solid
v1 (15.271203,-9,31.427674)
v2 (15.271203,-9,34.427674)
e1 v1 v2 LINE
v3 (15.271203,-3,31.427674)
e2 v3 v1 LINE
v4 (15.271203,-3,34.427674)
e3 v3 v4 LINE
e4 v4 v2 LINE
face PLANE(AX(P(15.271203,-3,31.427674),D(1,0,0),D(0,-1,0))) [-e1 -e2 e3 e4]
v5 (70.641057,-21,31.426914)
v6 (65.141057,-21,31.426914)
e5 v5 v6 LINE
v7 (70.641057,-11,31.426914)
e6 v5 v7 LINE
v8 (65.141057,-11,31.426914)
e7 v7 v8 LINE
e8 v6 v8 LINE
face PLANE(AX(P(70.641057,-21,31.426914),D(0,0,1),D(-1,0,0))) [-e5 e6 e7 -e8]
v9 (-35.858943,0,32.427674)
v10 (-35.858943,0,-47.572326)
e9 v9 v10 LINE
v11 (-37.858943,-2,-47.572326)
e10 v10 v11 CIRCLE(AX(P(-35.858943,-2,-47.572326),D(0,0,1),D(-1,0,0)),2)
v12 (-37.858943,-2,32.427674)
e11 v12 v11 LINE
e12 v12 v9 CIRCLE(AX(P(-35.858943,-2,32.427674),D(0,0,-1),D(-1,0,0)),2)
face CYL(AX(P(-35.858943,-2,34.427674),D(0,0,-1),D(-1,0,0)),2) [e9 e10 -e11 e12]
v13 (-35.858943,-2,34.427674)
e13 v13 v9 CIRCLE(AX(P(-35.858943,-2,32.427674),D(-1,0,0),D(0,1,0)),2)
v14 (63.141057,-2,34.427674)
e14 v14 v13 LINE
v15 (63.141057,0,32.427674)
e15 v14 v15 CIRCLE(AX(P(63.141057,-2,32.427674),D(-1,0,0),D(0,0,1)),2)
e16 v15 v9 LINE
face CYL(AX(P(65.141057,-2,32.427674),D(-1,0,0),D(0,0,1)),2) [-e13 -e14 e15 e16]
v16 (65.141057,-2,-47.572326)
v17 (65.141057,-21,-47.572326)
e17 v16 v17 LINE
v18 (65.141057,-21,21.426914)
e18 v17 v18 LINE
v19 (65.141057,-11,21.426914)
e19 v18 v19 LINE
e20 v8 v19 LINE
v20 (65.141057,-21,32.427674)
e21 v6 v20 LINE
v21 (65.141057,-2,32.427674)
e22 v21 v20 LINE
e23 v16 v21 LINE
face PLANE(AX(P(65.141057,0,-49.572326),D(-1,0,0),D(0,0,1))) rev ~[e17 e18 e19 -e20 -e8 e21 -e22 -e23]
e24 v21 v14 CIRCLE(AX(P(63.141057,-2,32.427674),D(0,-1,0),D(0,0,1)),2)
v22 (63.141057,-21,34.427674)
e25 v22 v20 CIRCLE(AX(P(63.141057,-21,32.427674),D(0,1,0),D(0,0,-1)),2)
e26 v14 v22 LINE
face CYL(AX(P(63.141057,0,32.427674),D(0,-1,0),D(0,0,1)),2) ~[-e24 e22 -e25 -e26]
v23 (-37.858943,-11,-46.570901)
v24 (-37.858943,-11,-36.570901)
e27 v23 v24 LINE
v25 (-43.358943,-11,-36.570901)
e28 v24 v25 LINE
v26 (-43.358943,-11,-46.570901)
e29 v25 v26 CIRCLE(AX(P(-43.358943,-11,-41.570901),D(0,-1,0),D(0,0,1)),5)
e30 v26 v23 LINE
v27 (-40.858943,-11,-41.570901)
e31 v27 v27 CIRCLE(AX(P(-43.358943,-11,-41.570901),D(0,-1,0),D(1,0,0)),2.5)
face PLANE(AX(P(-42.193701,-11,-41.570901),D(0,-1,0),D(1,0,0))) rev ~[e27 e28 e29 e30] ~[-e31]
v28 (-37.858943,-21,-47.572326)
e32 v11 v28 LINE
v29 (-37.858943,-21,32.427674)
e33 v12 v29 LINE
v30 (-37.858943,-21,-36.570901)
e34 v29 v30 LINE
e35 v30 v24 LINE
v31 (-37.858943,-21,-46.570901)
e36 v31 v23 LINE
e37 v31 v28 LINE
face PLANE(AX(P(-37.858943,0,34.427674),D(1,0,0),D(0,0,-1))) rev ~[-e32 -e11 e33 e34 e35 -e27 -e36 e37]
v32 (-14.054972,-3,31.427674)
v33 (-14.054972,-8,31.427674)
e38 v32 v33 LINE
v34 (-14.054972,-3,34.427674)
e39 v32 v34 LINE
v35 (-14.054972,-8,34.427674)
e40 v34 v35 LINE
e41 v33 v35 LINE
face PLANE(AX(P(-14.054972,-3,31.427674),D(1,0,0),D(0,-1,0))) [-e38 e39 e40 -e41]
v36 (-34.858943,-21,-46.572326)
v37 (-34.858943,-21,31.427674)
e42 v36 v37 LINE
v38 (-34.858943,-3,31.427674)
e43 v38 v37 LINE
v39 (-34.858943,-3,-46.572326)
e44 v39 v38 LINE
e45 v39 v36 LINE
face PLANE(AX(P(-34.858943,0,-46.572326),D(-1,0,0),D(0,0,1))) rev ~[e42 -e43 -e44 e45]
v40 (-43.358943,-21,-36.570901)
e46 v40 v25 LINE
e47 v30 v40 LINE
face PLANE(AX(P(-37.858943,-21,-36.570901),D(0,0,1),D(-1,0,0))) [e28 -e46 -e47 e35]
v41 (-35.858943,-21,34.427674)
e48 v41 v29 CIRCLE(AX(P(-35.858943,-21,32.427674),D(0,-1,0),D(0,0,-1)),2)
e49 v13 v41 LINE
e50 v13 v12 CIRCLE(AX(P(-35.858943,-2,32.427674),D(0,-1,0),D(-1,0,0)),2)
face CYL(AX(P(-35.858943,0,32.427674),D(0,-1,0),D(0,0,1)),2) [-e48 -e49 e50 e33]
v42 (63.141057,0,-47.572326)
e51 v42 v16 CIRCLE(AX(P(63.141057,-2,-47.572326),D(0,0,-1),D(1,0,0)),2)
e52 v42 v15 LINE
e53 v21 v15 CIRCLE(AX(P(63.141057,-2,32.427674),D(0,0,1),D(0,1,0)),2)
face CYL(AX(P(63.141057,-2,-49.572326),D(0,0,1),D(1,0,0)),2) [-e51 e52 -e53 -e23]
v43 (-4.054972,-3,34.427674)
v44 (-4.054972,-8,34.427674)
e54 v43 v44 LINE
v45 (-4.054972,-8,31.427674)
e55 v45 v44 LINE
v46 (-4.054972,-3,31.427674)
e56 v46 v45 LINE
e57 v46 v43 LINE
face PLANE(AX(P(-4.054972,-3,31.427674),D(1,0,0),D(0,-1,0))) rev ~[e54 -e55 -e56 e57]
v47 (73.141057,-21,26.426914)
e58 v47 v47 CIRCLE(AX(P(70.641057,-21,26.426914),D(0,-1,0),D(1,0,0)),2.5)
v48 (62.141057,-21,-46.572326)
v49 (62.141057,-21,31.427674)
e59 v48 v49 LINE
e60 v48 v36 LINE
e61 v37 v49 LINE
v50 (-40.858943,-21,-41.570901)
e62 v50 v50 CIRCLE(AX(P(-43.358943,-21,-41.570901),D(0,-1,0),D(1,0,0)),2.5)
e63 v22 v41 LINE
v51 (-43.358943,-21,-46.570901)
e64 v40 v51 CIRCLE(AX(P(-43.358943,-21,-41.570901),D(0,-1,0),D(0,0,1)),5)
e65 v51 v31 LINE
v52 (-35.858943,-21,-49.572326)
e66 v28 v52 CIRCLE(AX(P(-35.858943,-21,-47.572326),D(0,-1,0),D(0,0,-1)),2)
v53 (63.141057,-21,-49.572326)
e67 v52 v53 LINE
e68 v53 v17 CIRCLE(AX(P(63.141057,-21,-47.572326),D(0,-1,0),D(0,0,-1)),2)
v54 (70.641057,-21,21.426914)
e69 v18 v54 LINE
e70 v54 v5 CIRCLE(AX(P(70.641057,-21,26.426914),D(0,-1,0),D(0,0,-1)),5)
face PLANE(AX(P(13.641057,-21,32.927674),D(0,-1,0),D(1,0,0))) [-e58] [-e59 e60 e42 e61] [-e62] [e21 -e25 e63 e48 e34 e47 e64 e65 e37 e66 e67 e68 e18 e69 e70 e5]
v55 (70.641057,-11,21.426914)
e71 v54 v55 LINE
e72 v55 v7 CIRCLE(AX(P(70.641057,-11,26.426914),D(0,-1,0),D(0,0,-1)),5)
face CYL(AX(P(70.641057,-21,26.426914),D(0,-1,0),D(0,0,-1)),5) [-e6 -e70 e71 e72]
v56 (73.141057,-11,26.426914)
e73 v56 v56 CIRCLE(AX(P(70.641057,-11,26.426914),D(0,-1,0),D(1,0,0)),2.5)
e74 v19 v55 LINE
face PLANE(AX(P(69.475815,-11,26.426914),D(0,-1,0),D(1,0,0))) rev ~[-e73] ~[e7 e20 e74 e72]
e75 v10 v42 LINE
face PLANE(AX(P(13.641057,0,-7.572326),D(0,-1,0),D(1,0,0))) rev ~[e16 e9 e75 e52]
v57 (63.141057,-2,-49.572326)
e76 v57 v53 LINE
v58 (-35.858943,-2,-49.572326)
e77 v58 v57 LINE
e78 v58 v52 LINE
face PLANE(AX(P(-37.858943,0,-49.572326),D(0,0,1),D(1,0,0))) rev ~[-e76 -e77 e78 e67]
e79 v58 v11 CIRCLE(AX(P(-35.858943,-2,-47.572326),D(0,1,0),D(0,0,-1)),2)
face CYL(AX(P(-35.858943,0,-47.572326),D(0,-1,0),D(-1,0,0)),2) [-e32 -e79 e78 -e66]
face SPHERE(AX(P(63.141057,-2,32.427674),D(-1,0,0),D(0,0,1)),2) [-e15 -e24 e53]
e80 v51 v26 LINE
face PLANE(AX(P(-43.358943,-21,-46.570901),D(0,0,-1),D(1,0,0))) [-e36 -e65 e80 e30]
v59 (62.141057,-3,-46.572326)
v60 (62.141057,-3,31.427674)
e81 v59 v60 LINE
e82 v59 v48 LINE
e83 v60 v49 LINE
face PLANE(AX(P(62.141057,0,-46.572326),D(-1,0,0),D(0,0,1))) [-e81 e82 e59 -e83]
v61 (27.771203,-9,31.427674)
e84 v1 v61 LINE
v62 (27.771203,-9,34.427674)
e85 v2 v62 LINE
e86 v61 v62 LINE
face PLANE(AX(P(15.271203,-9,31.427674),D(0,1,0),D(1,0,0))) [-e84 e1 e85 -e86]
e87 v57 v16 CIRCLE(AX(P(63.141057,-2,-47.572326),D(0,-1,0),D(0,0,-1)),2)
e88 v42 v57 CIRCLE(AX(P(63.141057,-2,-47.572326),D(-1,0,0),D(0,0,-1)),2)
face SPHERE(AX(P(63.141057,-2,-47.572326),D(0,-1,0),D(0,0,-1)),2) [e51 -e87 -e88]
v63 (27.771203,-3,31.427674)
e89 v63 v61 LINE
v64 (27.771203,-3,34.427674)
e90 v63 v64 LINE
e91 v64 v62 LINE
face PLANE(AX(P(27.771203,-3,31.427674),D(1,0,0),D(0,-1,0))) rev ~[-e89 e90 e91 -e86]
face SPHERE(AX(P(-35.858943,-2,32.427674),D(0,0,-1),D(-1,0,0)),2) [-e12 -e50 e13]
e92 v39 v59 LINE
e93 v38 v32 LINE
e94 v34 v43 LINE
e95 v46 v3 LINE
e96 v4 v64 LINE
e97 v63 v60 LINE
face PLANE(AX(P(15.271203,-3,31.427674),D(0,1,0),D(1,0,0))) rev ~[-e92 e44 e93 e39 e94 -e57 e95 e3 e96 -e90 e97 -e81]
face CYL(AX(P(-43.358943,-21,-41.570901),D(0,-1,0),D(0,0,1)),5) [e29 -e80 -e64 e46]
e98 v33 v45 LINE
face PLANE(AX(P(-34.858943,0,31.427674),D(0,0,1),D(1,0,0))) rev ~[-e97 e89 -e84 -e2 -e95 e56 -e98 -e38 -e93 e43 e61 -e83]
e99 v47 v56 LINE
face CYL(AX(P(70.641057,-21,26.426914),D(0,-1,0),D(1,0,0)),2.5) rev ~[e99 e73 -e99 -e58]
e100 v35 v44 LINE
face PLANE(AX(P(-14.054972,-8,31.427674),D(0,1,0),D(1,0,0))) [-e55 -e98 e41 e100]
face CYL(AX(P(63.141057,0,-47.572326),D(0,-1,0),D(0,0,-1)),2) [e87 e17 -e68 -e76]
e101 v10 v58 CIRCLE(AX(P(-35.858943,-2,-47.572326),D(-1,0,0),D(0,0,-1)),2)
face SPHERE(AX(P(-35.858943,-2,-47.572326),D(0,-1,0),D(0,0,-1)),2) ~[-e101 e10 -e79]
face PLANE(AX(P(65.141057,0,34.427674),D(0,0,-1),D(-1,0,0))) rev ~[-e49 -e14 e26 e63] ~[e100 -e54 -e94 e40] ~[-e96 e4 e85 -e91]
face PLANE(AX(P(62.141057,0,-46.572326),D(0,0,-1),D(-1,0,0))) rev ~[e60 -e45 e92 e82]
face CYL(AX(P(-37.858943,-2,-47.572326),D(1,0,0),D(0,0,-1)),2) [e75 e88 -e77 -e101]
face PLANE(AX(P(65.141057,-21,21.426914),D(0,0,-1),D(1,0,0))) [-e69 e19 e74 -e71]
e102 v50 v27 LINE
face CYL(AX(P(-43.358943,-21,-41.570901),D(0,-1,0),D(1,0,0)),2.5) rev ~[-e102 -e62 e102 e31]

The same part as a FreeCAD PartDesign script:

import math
import FreeCAD as App
import Part
import Sketcher
Q = App.Units.Quantity


def edges_at(feature, points):
    """Names of the edges that pass closest to the given points."""
    edges = feature.Shape.Edges
    near = lambda p: min(range(len(edges)), key=lambda i: edges[i].distToShape(Part.Vertex(*p))[0])
    return sorted({f"Edge{near(p) + 1}" for p in points})


def add_polygon(sketch, points):
    """Adds a closed chain of lines whose ends are joined by coincident constraints."""
    first, n = sketch.GeometryCount, len(points)
    for a, b in zip(points, points[1:] + points[:1]):
        sketch.addGeometry(Part.LineSegment(App.Vector(*a, 0), App.Vector(*b, 0)), False)
    for i in range(n):
        sketch.addConstraint(Sketcher.Constraint("Coincident", first + i, 2, first + (i + 1) % n, 1))

doc = App.newDocument("Part")
params = doc.addObject("Spreadsheet::Sheet", "Params")
for row, (alias, value) in enumerate([
    ("sketch1_width", "103 mm"),
    ("sketch1_width2", "97 mm"),
    ("sketch1_height", "84 mm"),
    ("sketch1_height2", "78 mm"),
    ("pad1_length", "21 mm"),
    ("fillet_radius", "2 mm"),
    ("sketch2_width", "97 mm"),
    ("sketch2_height", "78 mm"),
    ("pad2_length", "3 mm"),
    ("sketch3_width", "10 mm"),
    ("sketch3_height", "5 mm"),
    ("pocket1_length", "3 mm"),
    ("sketch4_diameter", "5 mm"),
    ("sketch4_radius", "5 mm"),
    ("sketch4_width", "5.5 mm"),
    ("pad3_length", "10 mm"),
    ("sketch5_height", "6 mm"),
    ("sketch5_width", "12.5 mm"),
    ("pocket2_length", "3 mm"),
], start=1):
    params.set(f"A{row}", alias)
    params.set(f"B{row}", "=" + value)
    params.setAlias(f"B{row}", alias)

body = doc.addObject("PartDesign::Body", "Body")

sketch1 = body.newObject("Sketcher::SketchObject", "Sketch")
sketch1.AttachmentSupport = (doc.getObject("XZ_Plane"), [""])
sketch1.MapMode = "FlatFace"
add_polygon(sketch1, [(65, 34), (-38, 34), (-38, -50), (65, -50)])
add_polygon(sketch1, [(-35, 31), (62, 31), (62, -47), (-35, -47)])
sketch1.addConstraint(Sketcher.Constraint("Horizontal", 0))
sketch1.addConstraint(Sketcher.Constraint("Vertical", 1))
sketch1.addConstraint(Sketcher.Constraint("Horizontal", 2))
sketch1.addConstraint(Sketcher.Constraint("Vertical", 3))
sketch1.addConstraint(Sketcher.Constraint("Horizontal", 4))
sketch1.addConstraint(Sketcher.Constraint("Vertical", 5))
sketch1.addConstraint(Sketcher.Constraint("Horizontal", 6))
sketch1.addConstraint(Sketcher.Constraint("Vertical", 7))
sketch1.addConstraint(Sketcher.Constraint("DistanceX", 0, 2, 0, 1, Q("103 mm")))
sketch1.addConstraint(Sketcher.Constraint("DistanceX", 4, 1, 4, 2, Q("97 mm")))
sketch1.addConstraint(Sketcher.Constraint("DistanceY", 1, 2, 1, 1, Q("84 mm")))
sketch1.addConstraint(Sketcher.Constraint("DistanceY", 5, 2, 5, 1, Q("78 mm")))
sketch1.addConstraint(Sketcher.Constraint("DistanceX", 4, 2, 3, 2, Q("3 mm")))
sketch1.addConstraint(Sketcher.Constraint("DistanceY", 4, 2, 3, 2, Q("3 mm")))
sketch1.addConstraint(Sketcher.Constraint("DistanceX", 0, 2, -1, 1, Q("37.858943 mm")))
sketch1.addConstraint(Sketcher.Constraint("DistanceY", -1, 1, 0, 2, Q("34.427674 mm")))
sketch1.setExpression("Constraints[16]", "Params.sketch1_width")
sketch1.setExpression("Constraints[17]", "Params.sketch1_width2")
sketch1.setExpression("Constraints[18]", "Params.sketch1_height")
sketch1.setExpression("Constraints[19]", "Params.sketch1_height2")
pad1 = body.newObject("PartDesign::Pad", "Pad")
pad1.Profile = sketch1
pad1.setExpression("Length", "Params.pad1_length")
doc.recompute()

fillet = body.newObject("PartDesign::Fillet", "Fillet")
fillet.Base = (pad1, edges_at(pad1, [
    (-37.859, -10.5, -49.572),
    (65.141, -10.5, -49.572),
    (13.641, 0, -49.572),
    (-37.859, 0, -7.572),
    (-37.859, -10.5, 34.428),
    (13.641, 0, 34.428),
    (65.141, -10.5, 34.428),
    (65.141, 0, -7.572),
]))
fillet.setExpression("Radius", "Params.fillet_radius")

sketch2 = body.newObject("Sketcher::SketchObject", "Sketch001")
sketch2.AttachmentSupport = (doc.getObject("XZ_Plane"), [""])
sketch2.MapMode = "FlatFace"
add_polygon(sketch2, [(-35, 31), (-35, -47), (62, -47), (62, 31)])
sketch2.addConstraint(Sketcher.Constraint("Vertical", 0))
sketch2.addConstraint(Sketcher.Constraint("Horizontal", 1))
sketch2.addConstraint(Sketcher.Constraint("Vertical", 2))
sketch2.addConstraint(Sketcher.Constraint("Horizontal", 3))
sketch2.addConstraint(Sketcher.Constraint("DistanceX", 1, 1, 1, 2, Q("97 mm")))
sketch2.addConstraint(Sketcher.Constraint("DistanceY", 0, 2, 0, 1, Q("78 mm")))
sketch2.addConstraint(Sketcher.Constraint("DistanceX", 0, 2, -1, 1, Q("34.858943 mm")))
sketch2.addConstraint(Sketcher.Constraint("DistanceY", 0, 2, -1, 1, Q("46.572326 mm")))
sketch2.setExpression("Constraints[8]", "Params.sketch2_width")
sketch2.setExpression("Constraints[9]", "Params.sketch2_height")
pad2 = body.newObject("PartDesign::Pad", "Pad001")
pad2.Profile = sketch2
pad2.setExpression("Length", "Params.pad2_length")

sketch3 = body.newObject("Sketcher::SketchObject", "Sketch002")
sketch3.AttachmentSupport = (doc.getObject("XY_Plane"), [""])
sketch3.MapMode = "FlatFace"
sketch3.AttachmentOffset = App.Placement(App.Vector(0, 0, 31.427674), App.Rotation())
add_polygon(sketch3, [(-14, -8), (-14, -3), (-4, -3), (-4, -8)])
sketch3.addConstraint(Sketcher.Constraint("Vertical", 0))
sketch3.addConstraint(Sketcher.Constraint("Horizontal", 1))
sketch3.addConstraint(Sketcher.Constraint("Vertical", 2))
sketch3.addConstraint(Sketcher.Constraint("Horizontal", 3))
sketch3.addConstraint(Sketcher.Constraint("DistanceX", 1, 1, 1, 2, Q("10 mm")))
sketch3.addConstraint(Sketcher.Constraint("DistanceY", 0, 1, 0, 2, Q("5 mm")))
sketch3.addConstraint(Sketcher.Constraint("DistanceY", 0, 2, -1, 1, Q("3 mm")))
sketch3.addConstraint(Sketcher.Constraint("DistanceX", 0, 2, -1, 1, Q("14.054972 mm")))
sketch3.setExpression("Constraints[8]", "Params.sketch3_width")
sketch3.setExpression("Constraints[9]", "Params.sketch3_height")
pocket1 = body.newObject("PartDesign::Pocket", "Pocket")
pocket1.Profile = sketch3
pocket1.setExpression("Length", "Params.pocket1_length")
pocket1.Reversed = True

sketch4 = body.newObject("Sketcher::SketchObject", "Sketch003")
sketch4.AttachmentSupport = (doc.getObject("XZ_Plane"), [""])
sketch4.MapMode = "FlatFace"
sketch4.AttachmentOffset = App.Placement(App.Vector(0, 0, 21), App.Rotation())
sketch4.addGeometry(Part.LineSegment(App.Vector(70.6, 31.4, 0), App.Vector(65.1, 31.4, 0)), False)
sketch4.addGeometry(Part.LineSegment(App.Vector(65.1, 31.4, 0), App.Vector(65.1, 21.4, 0)), False)
sketch4.addGeometry(Part.LineSegment(App.Vector(65.1, 21.4, 0), App.Vector(70.6, 21.4, 0)), False)
sketch4.addGeometry(Part.ArcOfCircle(Part.Circle(App.Vector(70.6, 26.4, 0), App.Vector(0, 0, 1), 5), math.radians(-90), math.radians(90)), False)
sketch4.addGeometry(Part.Circle(App.Vector(70.6, 26.4, 0), App.Vector(0, 0, 1), 2.5), False)
sketch4.addGeometry(Part.LineSegment(App.Vector(-43.4, -46.6, 0), App.Vector(-37.9, -46.6, 0)), False)
sketch4.addGeometry(Part.LineSegment(App.Vector(-37.9, -46.6, 0), App.Vector(-37.9, -36.6, 0)), False)
sketch4.addGeometry(Part.LineSegment(App.Vector(-37.9, -36.6, 0), App.Vector(-43.4, -36.6, 0)), False)
sketch4.addGeometry(Part.ArcOfCircle(Part.Circle(App.Vector(-43.4, -41.6, 0), App.Vector(0, 0, 1), 5), math.radians(90), math.radians(270)), False)
sketch4.addGeometry(Part.Circle(App.Vector(-43.4, -41.6, 0), App.Vector(0, 0, 1), 2.5), False)
sketch4.addConstraint(Sketcher.Constraint("Coincident", 0, 2, 1, 1))
sketch4.addConstraint(Sketcher.Constraint("Coincident", 1, 2, 2, 1))
sketch4.addConstraint(Sketcher.Constraint("Tangent", 2, 2, 3, 1))
sketch4.addConstraint(Sketcher.Constraint("Tangent", 3, 2, 0, 1))
sketch4.addConstraint(Sketcher.Constraint("Coincident", 5, 2, 6, 1))
sketch4.addConstraint(Sketcher.Constraint("Coincident", 6, 2, 7, 1))
sketch4.addConstraint(Sketcher.Constraint("Tangent", 7, 2, 8, 1))
sketch4.addConstraint(Sketcher.Constraint("Tangent", 8, 2, 5, 1))
sketch4.addConstraint(Sketcher.Constraint("Horizontal", 0))
sketch4.addConstraint(Sketcher.Constraint("Vertical", 1))
sketch4.addConstraint(Sketcher.Constraint("Horizontal", 2))
sketch4.addConstraint(Sketcher.Constraint("Horizontal", 5))
sketch4.addConstraint(Sketcher.Constraint("Vertical", 6))
sketch4.addConstraint(Sketcher.Constraint("Horizontal", 7))
sketch4.addConstraint(Sketcher.Constraint("Coincident", 4, 3, 3, 3))
sketch4.addConstraint(Sketcher.Constraint("Coincident", 9, 3, 8, 3))
sketch4.addConstraint(Sketcher.Constraint("Equal", 3, 8))
sketch4.addConstraint(Sketcher.Constraint("Equal", 4, 9))
sketch4.addConstraint(Sketcher.Constraint("Equal", 2, 5))
sketch4.addConstraint(Sketcher.Constraint("Diameter", 4, Q("5 mm")))
sketch4.addConstraint(Sketcher.Constraint("Radius", 3, Q("5 mm")))
sketch4.addConstraint(Sketcher.Constraint("DistanceX", 0, 2, 0, 1, Q("5.5 mm")))
sketch4.addConstraint(Sketcher.Constraint("DistanceX", 8, 3, 3, 3, Q("114 mm")))
sketch4.addConstraint(Sketcher.Constraint("DistanceY", 8, 3, -1, 1, Q("41.570901 mm")))
sketch4.addConstraint(Sketcher.Constraint("DistanceX", -1, 1, 3, 3, Q("70.641057 mm")))
sketch4.addConstraint(Sketcher.Constraint("DistanceY", -1, 1, 3, 3, Q("26.426914 mm")))
sketch4.setExpression("Constraints[19]", "Params.sketch4_diameter")
sketch4.setExpression("Constraints[20]", "Params.sketch4_radius")
sketch4.setExpression("Constraints[21]", "Params.sketch4_width")
pad3 = body.newObject("PartDesign::Pad", "Pad002")
pad3.Profile = sketch4
pad3.setExpression("Length", "Params.pad3_length")
pad3.Reversed = True

sketch5 = body.newObject("Sketcher::SketchObject", "Sketch004")
sketch5.AttachmentSupport = (doc.getObject("XY_Plane"), [""])
sketch5.MapMode = "FlatFace"
sketch5.AttachmentOffset = App.Placement(App.Vector(0, 0, 31.427674), App.Rotation())
add_polygon(sketch5, [(15, -9), (15, -3), (28, -3), (28, -9)])
sketch5.addConstraint(Sketcher.Constraint("Vertical", 0))
sketch5.addConstraint(Sketcher.Constraint("Horizontal", 1))
sketch5.addConstraint(Sketcher.Constraint("Vertical", 2))
sketch5.addConstraint(Sketcher.Constraint("Horizontal", 3))
sketch5.addConstraint(Sketcher.Constraint("DistanceY", 0, 1, 0, 2, Q("6 mm")))
sketch5.addConstraint(Sketcher.Constraint("DistanceX", 1, 1, 1, 2, Q("12.5 mm")))
sketch5.addConstraint(Sketcher.Constraint("DistanceY", 0, 2, -1, 1, Q("3 mm")))
sketch5.addConstraint(Sketcher.Constraint("DistanceX", -1, 1, 0, 2, Q("15.271203 mm")))
sketch5.setExpression("Constraints[8]", "Params.sketch5_height")
sketch5.setExpression("Constraints[9]", "Params.sketch5_width")
pocket2 = body.newObject("PartDesign::Pocket", "Pocket001")
pocket2.Profile = sketch5
pocket2.setExpression("Length", "Params.pocket2_length")
pocket2.Reversed = True

doc.recompute()
